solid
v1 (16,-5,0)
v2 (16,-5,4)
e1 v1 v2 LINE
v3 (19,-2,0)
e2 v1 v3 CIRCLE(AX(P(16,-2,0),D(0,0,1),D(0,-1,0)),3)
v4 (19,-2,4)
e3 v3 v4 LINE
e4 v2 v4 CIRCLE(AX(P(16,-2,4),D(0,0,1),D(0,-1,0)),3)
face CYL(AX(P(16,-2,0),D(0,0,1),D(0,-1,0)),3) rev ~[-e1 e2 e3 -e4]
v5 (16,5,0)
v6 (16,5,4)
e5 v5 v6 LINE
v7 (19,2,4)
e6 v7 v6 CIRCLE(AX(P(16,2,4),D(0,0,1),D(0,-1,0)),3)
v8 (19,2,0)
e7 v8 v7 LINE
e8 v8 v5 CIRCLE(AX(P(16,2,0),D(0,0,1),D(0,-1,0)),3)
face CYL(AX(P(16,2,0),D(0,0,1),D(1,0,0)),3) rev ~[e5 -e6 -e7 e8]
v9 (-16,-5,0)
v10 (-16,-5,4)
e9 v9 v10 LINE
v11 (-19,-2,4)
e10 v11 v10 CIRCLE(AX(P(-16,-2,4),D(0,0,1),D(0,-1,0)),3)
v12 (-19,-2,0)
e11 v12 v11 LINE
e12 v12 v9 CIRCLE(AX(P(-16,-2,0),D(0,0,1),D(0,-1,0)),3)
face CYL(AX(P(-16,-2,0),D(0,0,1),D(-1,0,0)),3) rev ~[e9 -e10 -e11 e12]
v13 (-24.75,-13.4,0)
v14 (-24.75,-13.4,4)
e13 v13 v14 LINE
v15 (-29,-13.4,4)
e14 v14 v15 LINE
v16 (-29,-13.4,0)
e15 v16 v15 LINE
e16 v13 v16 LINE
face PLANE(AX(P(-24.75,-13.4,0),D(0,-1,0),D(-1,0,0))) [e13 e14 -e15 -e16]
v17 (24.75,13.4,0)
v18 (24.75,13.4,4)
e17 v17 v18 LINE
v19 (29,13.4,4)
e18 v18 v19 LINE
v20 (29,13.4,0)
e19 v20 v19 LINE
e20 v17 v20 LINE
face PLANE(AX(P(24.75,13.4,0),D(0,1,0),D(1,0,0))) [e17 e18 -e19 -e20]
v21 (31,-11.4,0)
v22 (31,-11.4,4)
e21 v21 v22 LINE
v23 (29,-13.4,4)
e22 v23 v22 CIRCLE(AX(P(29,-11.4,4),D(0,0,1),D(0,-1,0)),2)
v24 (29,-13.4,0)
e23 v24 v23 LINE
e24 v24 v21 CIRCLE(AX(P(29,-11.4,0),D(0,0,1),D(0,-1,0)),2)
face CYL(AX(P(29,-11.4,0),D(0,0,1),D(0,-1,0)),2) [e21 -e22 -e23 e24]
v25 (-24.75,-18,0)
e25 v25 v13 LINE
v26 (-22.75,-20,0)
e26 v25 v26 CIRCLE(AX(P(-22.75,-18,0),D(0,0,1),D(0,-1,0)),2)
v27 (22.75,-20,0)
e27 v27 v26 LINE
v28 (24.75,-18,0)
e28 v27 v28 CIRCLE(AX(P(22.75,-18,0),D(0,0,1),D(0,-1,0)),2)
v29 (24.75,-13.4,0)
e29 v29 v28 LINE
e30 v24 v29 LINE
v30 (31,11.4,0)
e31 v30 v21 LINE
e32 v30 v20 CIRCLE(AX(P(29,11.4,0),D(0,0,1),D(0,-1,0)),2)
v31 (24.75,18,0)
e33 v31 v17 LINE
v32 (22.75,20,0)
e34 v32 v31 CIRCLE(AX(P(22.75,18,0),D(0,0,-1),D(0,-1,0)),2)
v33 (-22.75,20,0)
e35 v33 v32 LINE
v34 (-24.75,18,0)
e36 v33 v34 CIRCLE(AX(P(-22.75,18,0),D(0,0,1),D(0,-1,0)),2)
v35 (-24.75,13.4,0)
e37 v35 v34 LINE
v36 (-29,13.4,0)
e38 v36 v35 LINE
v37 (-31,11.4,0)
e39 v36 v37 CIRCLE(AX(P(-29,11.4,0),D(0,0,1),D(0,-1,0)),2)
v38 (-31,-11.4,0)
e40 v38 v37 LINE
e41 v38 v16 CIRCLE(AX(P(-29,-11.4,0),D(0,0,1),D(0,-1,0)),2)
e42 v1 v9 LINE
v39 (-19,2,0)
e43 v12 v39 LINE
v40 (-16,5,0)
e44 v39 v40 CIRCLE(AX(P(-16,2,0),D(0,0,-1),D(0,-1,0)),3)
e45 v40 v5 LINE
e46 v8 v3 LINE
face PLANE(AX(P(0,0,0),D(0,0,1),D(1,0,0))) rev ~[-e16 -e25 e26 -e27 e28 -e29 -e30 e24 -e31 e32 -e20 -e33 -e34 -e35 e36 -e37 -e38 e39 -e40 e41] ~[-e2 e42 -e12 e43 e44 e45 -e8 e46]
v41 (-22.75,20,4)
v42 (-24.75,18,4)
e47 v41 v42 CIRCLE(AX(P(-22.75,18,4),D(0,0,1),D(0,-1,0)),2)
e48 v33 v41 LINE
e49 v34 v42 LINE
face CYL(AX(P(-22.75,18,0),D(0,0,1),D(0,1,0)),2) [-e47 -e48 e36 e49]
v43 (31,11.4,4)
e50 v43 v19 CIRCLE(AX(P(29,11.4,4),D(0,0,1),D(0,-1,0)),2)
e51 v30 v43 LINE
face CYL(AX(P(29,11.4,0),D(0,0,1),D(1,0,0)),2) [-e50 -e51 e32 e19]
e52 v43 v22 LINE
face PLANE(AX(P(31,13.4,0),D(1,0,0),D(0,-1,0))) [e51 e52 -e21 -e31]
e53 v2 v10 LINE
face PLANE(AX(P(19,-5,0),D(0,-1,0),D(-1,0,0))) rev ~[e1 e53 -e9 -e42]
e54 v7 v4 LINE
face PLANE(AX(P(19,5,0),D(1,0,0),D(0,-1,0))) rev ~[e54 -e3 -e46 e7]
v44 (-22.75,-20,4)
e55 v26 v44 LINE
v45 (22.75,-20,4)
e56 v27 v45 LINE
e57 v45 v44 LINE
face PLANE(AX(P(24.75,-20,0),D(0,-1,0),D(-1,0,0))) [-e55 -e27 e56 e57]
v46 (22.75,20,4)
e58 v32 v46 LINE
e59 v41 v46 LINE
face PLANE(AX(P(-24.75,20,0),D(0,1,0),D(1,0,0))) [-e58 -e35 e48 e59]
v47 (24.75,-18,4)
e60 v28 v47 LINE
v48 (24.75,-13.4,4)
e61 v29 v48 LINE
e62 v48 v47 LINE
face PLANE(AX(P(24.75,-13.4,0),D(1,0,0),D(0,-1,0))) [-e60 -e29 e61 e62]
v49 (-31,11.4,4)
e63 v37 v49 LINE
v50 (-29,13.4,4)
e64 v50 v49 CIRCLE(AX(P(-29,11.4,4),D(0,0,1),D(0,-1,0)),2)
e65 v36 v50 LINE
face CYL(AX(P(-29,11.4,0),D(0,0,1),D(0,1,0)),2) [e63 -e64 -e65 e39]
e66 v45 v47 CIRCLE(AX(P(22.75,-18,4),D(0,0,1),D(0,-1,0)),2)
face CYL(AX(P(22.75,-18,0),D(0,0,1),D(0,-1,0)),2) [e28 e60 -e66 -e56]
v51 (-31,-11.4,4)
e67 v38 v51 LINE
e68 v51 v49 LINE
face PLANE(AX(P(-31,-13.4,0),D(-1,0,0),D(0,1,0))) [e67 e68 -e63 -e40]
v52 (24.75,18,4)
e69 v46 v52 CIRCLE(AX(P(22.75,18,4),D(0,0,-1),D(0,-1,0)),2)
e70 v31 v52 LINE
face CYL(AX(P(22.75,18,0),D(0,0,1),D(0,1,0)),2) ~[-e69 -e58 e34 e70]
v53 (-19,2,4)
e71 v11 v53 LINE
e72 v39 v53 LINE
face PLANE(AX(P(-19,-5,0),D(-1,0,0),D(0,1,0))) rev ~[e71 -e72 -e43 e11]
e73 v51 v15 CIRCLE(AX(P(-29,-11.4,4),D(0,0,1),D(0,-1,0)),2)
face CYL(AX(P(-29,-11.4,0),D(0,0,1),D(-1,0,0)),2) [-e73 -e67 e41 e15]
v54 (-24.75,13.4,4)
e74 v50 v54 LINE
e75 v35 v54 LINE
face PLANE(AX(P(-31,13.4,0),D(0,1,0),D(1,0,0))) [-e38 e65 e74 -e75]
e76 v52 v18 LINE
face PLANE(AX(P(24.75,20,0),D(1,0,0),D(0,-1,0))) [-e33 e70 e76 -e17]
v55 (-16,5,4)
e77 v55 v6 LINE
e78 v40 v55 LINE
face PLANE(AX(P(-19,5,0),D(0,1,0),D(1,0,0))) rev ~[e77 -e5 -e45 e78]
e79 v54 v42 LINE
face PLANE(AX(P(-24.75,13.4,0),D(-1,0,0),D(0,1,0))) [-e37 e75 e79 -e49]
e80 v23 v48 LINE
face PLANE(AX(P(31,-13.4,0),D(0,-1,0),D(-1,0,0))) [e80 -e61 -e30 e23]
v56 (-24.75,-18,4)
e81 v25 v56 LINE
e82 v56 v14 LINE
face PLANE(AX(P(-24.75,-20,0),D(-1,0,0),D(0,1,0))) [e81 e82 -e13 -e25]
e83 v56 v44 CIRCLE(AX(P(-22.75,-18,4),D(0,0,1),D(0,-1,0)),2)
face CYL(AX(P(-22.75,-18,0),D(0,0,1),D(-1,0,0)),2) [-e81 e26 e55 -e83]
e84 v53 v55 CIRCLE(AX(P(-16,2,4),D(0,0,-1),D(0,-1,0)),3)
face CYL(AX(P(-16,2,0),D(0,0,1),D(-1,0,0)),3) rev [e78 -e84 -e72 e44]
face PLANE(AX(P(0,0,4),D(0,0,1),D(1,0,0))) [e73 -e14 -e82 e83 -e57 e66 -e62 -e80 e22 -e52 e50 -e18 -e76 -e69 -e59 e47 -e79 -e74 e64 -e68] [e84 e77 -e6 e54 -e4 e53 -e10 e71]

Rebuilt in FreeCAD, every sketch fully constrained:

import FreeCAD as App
import Part
import Sketcher


def edges_at(feature, points):
    """Names of the edges that pass closest to the given points."""
    edges = feature.Shape.Edges
    near = lambda p: min(range(len(edges)), key=lambda i: edges[i].distToShape(Part.Vertex(*p))[0])
    return sorted({f"Edge{near(p) + 1}" for p in points})


def add_polygon(sketch, points):
    """Adds a closed chain of lines whose ends are joined by coincident constraints."""
    first, n = sketch.GeometryCount, len(points)
    for a, b in zip(points, points[1:] + points[:1]):
        sketch.addGeometry(Part.LineSegment(App.Vector(*a, 0), App.Vector(*b, 0)), False)
    for i in range(n):
        sketch.addConstraint(Sketcher.Constraint("Coincident", first + i, 2, first + (i + 1) % n, 1))

doc = App.newDocument("Part")
body = doc.addObject("PartDesign::Body", "Body")

# Sketch on XY plane
sketch1 = body.newObject("Sketcher::SketchObject", "Sketch")
sketch1.AttachmentSupport = (doc.getObject("XY_Plane"), [""])
sketch1.MapMode = "FlatFace"
add_polygon(sketch1, [(25, 20), (-25, 20), (-25, 13), (-31, 13), (-31, -13), (-25, -13), (-25, -20), (25, -20), (25, -13), (31, -13), (31, 13), (25, 13)])  # lines 0-11
add_polygon(sketch1, [(-19, 5), (19, 5), (19, -5), (-19, -5)])  # lines 12-15
sketch1.addConstraint(Sketcher.Constraint("Horizontal", 0))
sketch1.addConstraint(Sketcher.Constraint("Vertical", 1))
sketch1.addConstraint(Sketcher.Constraint("Horizontal", 2))
sketch1.addConstraint(Sketcher.Constraint("Vertical", 3))
sketch1.addConstraint(Sketcher.Constraint("Horizontal", 4))
sketch1.addConstraint(Sketcher.Constraint("Vertical", 5))
sketch1.addConstraint(Sketcher.Constraint("Horizontal", 6))
sketch1.addConstraint(Sketcher.Constraint("Vertical", 7))
sketch1.addConstraint(Sketcher.Constraint("Horizontal", 8))
sketch1.addConstraint(Sketcher.Constraint("Vertical", 9))
sketch1.addConstraint(Sketcher.Constraint("Horizontal", 10))
sketch1.addConstraint(Sketcher.Constraint("Vertical", 11))
sketch1.addConstraint(Sketcher.Constraint("Horizontal", 12))
sketch1.addConstraint(Sketcher.Constraint("Vertical", 13))
sketch1.addConstraint(Sketcher.Constraint("Horizontal", 14))
sketch1.addConstraint(Sketcher.Constraint("Vertical", 15))
sketch1.addConstraint(Sketcher.Constraint("Symmetric", 0, 2, 6, 2, -1, 1))
sketch1.addConstraint(Sketcher.Constraint("Symmetric", 2, 2, 8, 2, -1, 1))
sketch1.addConstraint(Sketcher.Constraint("Symmetric", 4, 2, 10, 2, -1, 1))
sketch1.addConstraint(Sketcher.Constraint("Symmetric", 12, 2, 14, 2, -1, 1))
sketch1.addConstraint(Sketcher.Constraint("Symmetric", 4, 2, 7, 2, -2))
sketch1.addConstraint(Sketcher.Constraint("DistanceX", 12, 1, 12, 2, 38.0))
sketch1.addConstraint(Sketcher.Constraint("DistanceY", 13, 2, 13, 1, 10.0))
sketch1.addConstraint(Sketcher.Constraint("DistanceX", 0, 2, 0, 1, 49.5))
sketch1.addConstraint(Sketcher.Constraint("DistanceY", 3, 2, 3, 1, 26.8))
sketch1.addConstraint(Sketcher.Constraint("DistanceY", 5, 2, 0, 2, 40.0))
sketch1.addConstraint(Sketcher.Constraint("DistanceX", 2, 2, -1, 1, 31.0))
pad1 = body.newObject("PartDesign::Pad", "Pad")
pad1.Profile = sketch1
pad1.Length = 4
doc.recompute()

fillet = body.newObject("PartDesign::Fillet", "Fillet")
fillet.Base = (pad1, edges_at(pad1, [
    (-19, 5, 2),
    (19, 5, 2),
    (-19, -5, 2),
    (19, -5, 2),
]))
fillet.Radius = 3
doc.recompute()

fillet2 = body.newObject("PartDesign::Fillet", "Fillet001")
fillet2.Base = (fillet, edges_at(fillet, [
    (24.75, 20, 2),
    (31, 13.4, 2),
    (31, -13.4, 2),
    (24.75, -20, 2),
    (-24.75, 20, 2),
    (-31, 13.4, 2),
    (-31, -13.4, 2),
    (-24.75, -20, 2),
]))
fillet2.Radius = 2

doc.recompute()
